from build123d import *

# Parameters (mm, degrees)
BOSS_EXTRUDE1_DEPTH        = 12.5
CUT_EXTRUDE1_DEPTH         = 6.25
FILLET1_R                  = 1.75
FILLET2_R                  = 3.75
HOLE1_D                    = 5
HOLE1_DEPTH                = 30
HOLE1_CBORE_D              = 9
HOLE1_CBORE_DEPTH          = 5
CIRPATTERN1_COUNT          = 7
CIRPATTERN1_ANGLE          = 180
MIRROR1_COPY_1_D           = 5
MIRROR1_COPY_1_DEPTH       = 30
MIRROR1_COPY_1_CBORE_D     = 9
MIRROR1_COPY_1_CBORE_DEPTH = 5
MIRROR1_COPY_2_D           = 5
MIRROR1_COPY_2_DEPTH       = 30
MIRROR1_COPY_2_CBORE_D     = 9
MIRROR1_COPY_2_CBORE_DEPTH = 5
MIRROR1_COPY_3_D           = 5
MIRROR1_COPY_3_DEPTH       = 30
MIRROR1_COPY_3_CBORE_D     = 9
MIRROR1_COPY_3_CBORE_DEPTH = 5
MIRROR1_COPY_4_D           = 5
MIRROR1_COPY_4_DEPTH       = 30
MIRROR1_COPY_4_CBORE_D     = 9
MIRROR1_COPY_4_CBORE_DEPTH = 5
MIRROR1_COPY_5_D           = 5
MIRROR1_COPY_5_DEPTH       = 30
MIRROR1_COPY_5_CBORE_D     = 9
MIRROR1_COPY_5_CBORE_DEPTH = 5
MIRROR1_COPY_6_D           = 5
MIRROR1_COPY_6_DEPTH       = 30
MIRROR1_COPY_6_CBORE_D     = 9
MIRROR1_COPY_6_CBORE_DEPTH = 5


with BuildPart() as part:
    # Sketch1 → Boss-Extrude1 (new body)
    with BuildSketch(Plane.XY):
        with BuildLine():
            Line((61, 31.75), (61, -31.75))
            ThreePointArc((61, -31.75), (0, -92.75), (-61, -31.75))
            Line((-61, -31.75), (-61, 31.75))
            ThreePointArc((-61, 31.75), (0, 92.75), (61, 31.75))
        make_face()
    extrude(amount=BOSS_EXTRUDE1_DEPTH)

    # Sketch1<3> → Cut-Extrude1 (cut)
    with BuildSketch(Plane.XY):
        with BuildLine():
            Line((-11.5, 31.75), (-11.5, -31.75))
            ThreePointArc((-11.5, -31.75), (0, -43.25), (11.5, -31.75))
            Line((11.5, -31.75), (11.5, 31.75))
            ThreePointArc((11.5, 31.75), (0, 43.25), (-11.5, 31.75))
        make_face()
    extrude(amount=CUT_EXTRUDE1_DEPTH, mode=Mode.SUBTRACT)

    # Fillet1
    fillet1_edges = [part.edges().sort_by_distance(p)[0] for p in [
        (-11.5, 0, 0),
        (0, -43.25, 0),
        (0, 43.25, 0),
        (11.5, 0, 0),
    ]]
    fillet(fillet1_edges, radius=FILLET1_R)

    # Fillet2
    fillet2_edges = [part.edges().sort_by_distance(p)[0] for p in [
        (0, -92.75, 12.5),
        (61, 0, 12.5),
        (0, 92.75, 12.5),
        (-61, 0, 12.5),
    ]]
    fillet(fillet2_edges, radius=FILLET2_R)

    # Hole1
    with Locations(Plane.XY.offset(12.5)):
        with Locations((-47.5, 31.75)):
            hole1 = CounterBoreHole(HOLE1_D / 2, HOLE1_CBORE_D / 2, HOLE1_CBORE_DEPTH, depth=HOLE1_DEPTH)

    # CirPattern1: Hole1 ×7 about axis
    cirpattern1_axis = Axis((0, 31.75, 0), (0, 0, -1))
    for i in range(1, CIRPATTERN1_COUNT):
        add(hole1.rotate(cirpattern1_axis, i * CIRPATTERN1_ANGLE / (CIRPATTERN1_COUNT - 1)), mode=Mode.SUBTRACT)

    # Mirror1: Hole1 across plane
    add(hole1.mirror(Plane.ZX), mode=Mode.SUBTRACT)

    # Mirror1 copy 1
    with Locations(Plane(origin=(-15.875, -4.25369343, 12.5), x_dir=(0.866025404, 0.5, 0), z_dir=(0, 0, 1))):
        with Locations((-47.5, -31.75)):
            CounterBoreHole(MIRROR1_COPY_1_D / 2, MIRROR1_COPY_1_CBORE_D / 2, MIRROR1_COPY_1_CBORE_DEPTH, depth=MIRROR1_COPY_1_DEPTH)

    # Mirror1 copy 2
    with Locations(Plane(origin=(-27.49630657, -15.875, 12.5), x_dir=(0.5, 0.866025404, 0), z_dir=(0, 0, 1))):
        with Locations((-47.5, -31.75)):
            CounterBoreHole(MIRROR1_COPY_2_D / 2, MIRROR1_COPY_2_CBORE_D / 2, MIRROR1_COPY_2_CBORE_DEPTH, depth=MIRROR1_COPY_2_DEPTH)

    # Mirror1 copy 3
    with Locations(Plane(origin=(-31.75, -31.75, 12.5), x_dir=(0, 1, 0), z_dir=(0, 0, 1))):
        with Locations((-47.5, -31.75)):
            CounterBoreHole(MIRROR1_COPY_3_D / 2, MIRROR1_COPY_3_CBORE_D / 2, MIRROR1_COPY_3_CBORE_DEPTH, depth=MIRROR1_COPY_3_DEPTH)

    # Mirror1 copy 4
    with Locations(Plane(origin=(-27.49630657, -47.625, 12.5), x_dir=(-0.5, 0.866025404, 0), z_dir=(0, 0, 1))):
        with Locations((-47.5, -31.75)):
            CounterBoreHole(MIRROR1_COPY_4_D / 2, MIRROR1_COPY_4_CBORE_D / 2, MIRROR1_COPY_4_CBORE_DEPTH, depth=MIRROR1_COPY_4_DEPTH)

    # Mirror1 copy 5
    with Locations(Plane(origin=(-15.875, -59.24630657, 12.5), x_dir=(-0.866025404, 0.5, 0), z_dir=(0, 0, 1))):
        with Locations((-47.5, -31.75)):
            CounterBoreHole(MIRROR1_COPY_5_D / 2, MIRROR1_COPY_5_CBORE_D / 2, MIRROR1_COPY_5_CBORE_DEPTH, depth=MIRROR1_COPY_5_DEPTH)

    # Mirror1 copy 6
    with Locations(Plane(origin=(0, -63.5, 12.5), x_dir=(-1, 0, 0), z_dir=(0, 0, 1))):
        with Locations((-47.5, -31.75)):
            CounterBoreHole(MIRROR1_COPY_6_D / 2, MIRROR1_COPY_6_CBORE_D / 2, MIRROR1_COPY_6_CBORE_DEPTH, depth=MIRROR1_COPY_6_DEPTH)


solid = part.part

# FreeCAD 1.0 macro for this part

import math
import FreeCAD as App
import Part
import Sketcher
Q = App.Units.Quantity


def edges_at(feature, points):
    """Names of the edges that pass closest to the given points."""
    edges = feature.Shape.Edges
    near = lambda p: min(range(len(edges)), key=lambda i: edges[i].distToShape(Part.Vertex(*p))[0])
    return sorted({f"Edge{near(p) + 1}" for p in points})

doc = App.newDocument("Part")
body = doc.addObject("PartDesign::Body", "Body")

# Sketch on XY plane
sketch1 = doc.addObject("Sketcher::SketchObject", "Sketch")
body.addObject(sketch1)
sketch1.AttachmentSupport = (doc.XY_Plane, [""])
sketch1.MapMode = "FlatFace"
sketch1.addGeometry([
    Part.LineSegment(App.Vector(61, -32, 0), App.Vector(61, 32, 0)),
    Part.ArcOfCircle(Part.Circle(App.Vector(0, 32, 0), App.Vector(0, 0, 1), 61), math.radians(0), math.radians(180)),
    Part.LineSegment(App.Vector(-61, 32, 0), App.Vector(-61, -32, 0)),
    Part.ArcOfCircle(Part.Circle(App.Vector(0, -32, 0), App.Vector(0, 0, 1), 61), math.radians(180), math.radians(360)),
], False)
sketch1.addConstraint([
    Sketcher.Constraint("Tangent", 0, 2, 1, 1),
    Sketcher.Constraint("Tangent", 1, 2, 2, 1),
    Sketcher.Constraint("Tangent", 2, 2, 3, 1),
    Sketcher.Constraint("Tangent", 3, 2, 0, 1),
    Sketcher.Constraint("Vertical", 0),
    Sketcher.Constraint("Vertical", 2),
    Sketcher.Constraint("Symmetric", 1, 3, 3, 3, -1, 1),
    Sketcher.Constraint("Radius", 1, Q("61 mm")),
    Sketcher.Constraint("DistanceY", 0, 1, 0, 2, Q("63.5 mm")),
])
pad1 = doc.addObject("PartDesign::Pad", "Pad")
body.addObject(pad1)
pad1.Profile = sketch1
pad1.Length = 12.5

# Sketch on XY plane
sketch2 = doc.addObject("Sketcher::SketchObject", "Sketch001")
body.addObject(sketch2)
sketch2.AttachmentSupport = (doc.XY_Plane, [""])
sketch2.MapMode = "FlatFace"
sketch2.addGeometry([
    Part.LineSegment(App.Vector(-12, 32, 0), App.Vector(-12, -32, 0)),
    Part.ArcOfCircle(Part.Circle(App.Vector(0, -32, 0), App.Vector(0, 0, 1), 12), math.radians(180), math.radians(360)),
    Part.LineSegment(App.Vector(12, -32, 0), App.Vector(12, 32, 0)),
    Part.ArcOfCircle(Part.Circle(App.Vector(0, 32, 0), App.Vector(0, 0, 1), 12), math.radians(0), math.radians(180)),
], False)
sketch2.addConstraint([
    Sketcher.Constraint("Tangent", 0, 2, 1, 1),
    Sketcher.Constraint("Tangent", 1, 2, 2, 1),
    Sketcher.Constraint("Tangent", 2, 2, 3, 1),
    Sketcher.Constraint("Tangent", 3, 2, 0, 1),
    Sketcher.Constraint("Vertical", 0),
    Sketcher.Constraint("Vertical", 2),
    Sketcher.Constraint("Symmetric", 1, 3, 3, 3, -1, 1),
    Sketcher.Constraint("Radius", 1, Q("11.5 mm")),
    Sketcher.Constraint("DistanceY", 0, 2, 0, 1, Q("63.5 mm")),
])
pocket1 = doc.addObject("PartDesign::Pocket", "Pocket")
body.addObject(pocket1)
pocket1.Profile = sketch2
pocket1.Length = 6.25
pocket1.Reversed = True
doc.recompute()

fillet = doc.addObject("PartDesign::Fillet", "Fillet")
body.addObject(fillet)
fillet.Base = (pocket1, edges_at(pocket1, [
    (-11.5, 0, 0),
    (0, -43.25, 0),
    (0, 43.25, 0),
    (11.5, 0, 0),
]))
fillet.Radius = 1.75
doc.recompute()

fillet2 = doc.addObject("PartDesign::Fillet", "Fillet001")
body.addObject(fillet2)
fillet2.Base = (fillet, edges_at(fillet, [
    (0, -92.75, 12.5),
    (61, 0, 12.5),
    (0, 92.75, 12.5),
    (-61, 0, 12.5),
]))
fillet2.Radius = 3.75

# Sketch on XY plane
sketch3 = doc.addObject("Sketcher::SketchObject", "Sketch002")
body.addObject(sketch3)
sketch3.AttachmentSupport = (doc.XY_Plane, [""])
sketch3.MapMode = "FlatFace"
sketch3.AttachmentOffset = App.Placement(App.Vector(0, 0, 12.5), App.Rotation())
sketch3.addGeometry(Part.Circle(App.Vector(-47.5, 31.8, 0), App.Vector(0, 0, 1), 2.5), False)
sketch3.addConstraint([
    Sketcher.Constraint("Diameter", 0, Q("5 mm")),
    Sketcher.Constraint("DistanceX", 0, 3, -1, 1, Q("47.5 mm")),
    Sketcher.Constraint("DistanceY", -1, 1, 0, 3, Q("31.75 mm")),
])
doc.recompute()
hole = doc.addObject("PartDesign::Hole", "Hole")
body.addObject(hole)
hole.Profile = sketch3
hole.ThreadType = "None"
hole.Diameter = 5
hole.DepthType = "Dimension"
hole.Depth = 30
hole.DrillPoint = "Flat"
hole.HoleCutType = "Counterbore"
hole.HoleCutDiameter = 9
hole.HoleCutDepth = 5
doc.recompute()

datumline = doc.addObject("PartDesign::Line", "DatumLine")
body.addObject(datumline)
datumline.Placement = App.Placement(App.Vector(0, 31.75, 0), App.Rotation(App.Vector(0, 0, 1), App.Vector(0, 0, -1)))
polarpattern = doc.addObject("PartDesign::PolarPattern", "PolarPattern")
body.addObject(polarpattern)
polarpattern.Originals = [hole]
polarpattern.Axis = (datumline, [""])
polarpattern.Angle = 180
polarpattern.Occurrences = 7
body.Tip = polarpattern
doc.recompute()

mirrored = doc.addObject("PartDesign::Mirrored", "Mirrored")
body.addObject(mirrored)
mirrored.Originals = [hole]
mirrored.MirrorPlane = (doc.XZ_Plane, [""])
body.Tip = mirrored

# Sketch on XY plane
sketch4 = doc.addObject("Sketcher::SketchObject", "Sketch003")
body.addObject(sketch4)
sketch4.AttachmentSupport = (doc.XY_Plane, [""])
sketch4.MapMode = "FlatFace"
sketch4.AttachmentOffset = App.Placement(App.Vector(0, 0, 12.5), App.Rotation())
sketch4.addGeometry(Part.Circle(App.Vector(-41.1, -55.5, 0), App.Vector(0, 0, 1), 2.5), False)
sketch4.addConstraint([
    Sketcher.Constraint("Diameter", 0, Q("5 mm")),
    Sketcher.Constraint("DistanceY", 0, 3, -1, 1, Q("55.5 mm")),
    Sketcher.Constraint("DistanceX", 0, 3, -1, 1, Q("41.136207 mm")),
])
doc.recompute()
hole2 = doc.addObject("PartDesign::Hole", "Hole001")
body.addObject(hole2)
hole2.Profile = sketch4
hole2.ThreadType = "None"
hole2.Diameter = 5
hole2.DepthType = "Dimension"
hole2.Depth = 30
hole2.DrillPoint = "Flat"
hole2.HoleCutType = "Counterbore"
hole2.HoleCutDiameter = 9
hole2.HoleCutDepth = 5

# Sketch on XY plane
sketch5 = doc.addObject("Sketcher::SketchObject", "Sketch004")
body.addObject(sketch5)
sketch5.AttachmentSupport = (doc.XY_Plane, [""])
sketch5.MapMode = "FlatFace"
sketch5.AttachmentOffset = App.Placement(App.Vector(0, 0, 12.5), App.Rotation())
sketch5.addGeometry(Part.Circle(App.Vector(-23.7, -72.9, 0), App.Vector(0, 0, 1), 2.5), False)
sketch5.addConstraint([
    Sketcher.Constraint("Diameter", 0, Q("5 mm")),
    Sketcher.Constraint("DistanceX", 0, 3, -1, 1, Q("23.75 mm")),
    Sketcher.Constraint("DistanceY", 0, 3, -1, 1, Q("72.886207 mm")),
])
doc.recompute()
hole3 = doc.addObject("PartDesign::Hole", "Hole002")
body.addObject(hole3)
hole3.Profile = sketch5
hole3.ThreadType = "None"
hole3.Diameter = 5
hole3.DepthType = "Dimension"
hole3.Depth = 30
hole3.DrillPoint = "Flat"
hole3.HoleCutType = "Counterbore"
hole3.HoleCutDiameter = 9
hole3.HoleCutDepth = 5

# Sketch on XY plane
sketch6 = doc.addObject("Sketcher::SketchObject", "Sketch005")
body.addObject(sketch6)
sketch6.AttachmentSupport = (doc.XY_Plane, [""])
sketch6.MapMode = "FlatFace"
sketch6.AttachmentOffset = App.Placement(App.Vector(0, 0, 12.5), App.Rotation())
sketch6.addGeometry(Part.Circle(App.Vector(0, -79.2, 0), App.Vector(0, 0, 1), 2.5), False)
sketch6.addConstraint([
    Sketcher.Constraint("PointOnObject", 0, 3, -2),
    Sketcher.Constraint("Diameter", 0, Q("5 mm")),
    Sketcher.Constraint("DistanceY", 0, 3, -1, 1, Q("79.25 mm")),
])
doc.recompute()
hole4 = doc.addObject("PartDesign::Hole", "Hole003")
body.addObject(hole4)
hole4.Profile = sketch6
hole4.ThreadType = "None"
hole4.Diameter = 5
hole4.DepthType = "Dimension"
hole4.Depth = 30
hole4.DrillPoint = "Flat"
hole4.HoleCutType = "Counterbore"
hole4.HoleCutDiameter = 9
hole4.HoleCutDepth = 5

# Sketch on XY plane
sketch7 = doc.addObject("Sketcher::SketchObject", "Sketch006")
body.addObject(sketch7)
sketch7.AttachmentSupport = (doc.XY_Plane, [""])
sketch7.MapMode = "FlatFace"
sketch7.AttachmentOffset = App.Placement(App.Vector(0, 0, 12.5), App.Rotation())
sketch7.addGeometry(Part.Circle(App.Vector(23.8, -72.9, 0), App.Vector(0, 0, 1), 2.5), False)
sketch7.addConstraint([
    Sketcher.Constraint("Diameter", 0, Q("5 mm")),
    Sketcher.Constraint("DistanceX", -1, 1, 0, 3, Q("23.75 mm")),
    Sketcher.Constraint("DistanceY", 0, 3, -1, 1, Q("72.886207 mm")),
])
doc.recompute()
hole5 = doc.addObject("PartDesign::Hole", "Hole004")
body.addObject(hole5)
hole5.Profile = sketch7
hole5.ThreadType = "None"
hole5.Diameter = 5
hole5.DepthType = "Dimension"
hole5.Depth = 30
hole5.DrillPoint = "Flat"
hole5.HoleCutType = "Counterbore"
hole5.HoleCutDiameter = 9
hole5.HoleCutDepth = 5

# Sketch on XY plane
sketch8 = doc.addObject("Sketcher::SketchObject", "Sketch007")
body.addObject(sketch8)
sketch8.AttachmentSupport = (doc.XY_Plane, [""])
sketch8.MapMode = "FlatFace"
sketch8.AttachmentOffset = App.Placement(App.Vector(0, 0, 12.5), App.Rotation())
sketch8.addGeometry(Part.Circle(App.Vector(41.1, -55.5, 0), App.Vector(0, 0, 1), 2.5), False)
sketch8.addConstraint([
    Sketcher.Constraint("Diameter", 0, Q("5 mm")),
    Sketcher.Constraint("DistanceY", 0, 3, -1, 1, Q("55.5 mm")),
    Sketcher.Constraint("DistanceX", -1, 1, 0, 3, Q("41.136207 mm")),
])
doc.recompute()
hole6 = doc.addObject("PartDesign::Hole", "Hole005")
body.addObject(hole6)
hole6.Profile = sketch8
hole6.ThreadType = "None"
hole6.Diameter = 5
hole6.DepthType = "Dimension"
hole6.Depth = 30
hole6.DrillPoint = "Flat"
hole6.HoleCutType = "Counterbore"
hole6.HoleCutDiameter = 9
hole6.HoleCutDepth = 5

# Sketch on XY plane
sketch9 = doc.addObject("Sketcher::SketchObject", "Sketch008")
body.addObject(sketch9)
sketch9.AttachmentSupport = (doc.XY_Plane, [""])
sketch9.MapMode = "FlatFace"
sketch9.AttachmentOffset = App.Placement(App.Vector(0, 0, 12.5), App.Rotation())
sketch9.addGeometry(Part.Circle(App.Vector(47.5, -31.8, 0), App.Vector(0, 0, 1), 2.5), False)
sketch9.addConstraint([
    Sketcher.Constraint("Diameter", 0, Q("5 mm")),
    Sketcher.Constraint("DistanceX", -1, 1, 0, 3, Q("47.5 mm")),
    Sketcher.Constraint("DistanceY", 0, 3, -1, 1, Q("31.75 mm")),
])
doc.recompute()
hole7 = doc.addObject("PartDesign::Hole", "Hole006")
body.addObject(hole7)
hole7.Profile = sketch9
hole7.ThreadType = "None"
hole7.Diameter = 5
hole7.DepthType = "Dimension"
hole7.Depth = 30
hole7.DrillPoint = "Flat"
hole7.HoleCutType = "Counterbore"
hole7.HoleCutDiameter = 9
hole7.HoleCutDepth = 5

doc.recompute()
